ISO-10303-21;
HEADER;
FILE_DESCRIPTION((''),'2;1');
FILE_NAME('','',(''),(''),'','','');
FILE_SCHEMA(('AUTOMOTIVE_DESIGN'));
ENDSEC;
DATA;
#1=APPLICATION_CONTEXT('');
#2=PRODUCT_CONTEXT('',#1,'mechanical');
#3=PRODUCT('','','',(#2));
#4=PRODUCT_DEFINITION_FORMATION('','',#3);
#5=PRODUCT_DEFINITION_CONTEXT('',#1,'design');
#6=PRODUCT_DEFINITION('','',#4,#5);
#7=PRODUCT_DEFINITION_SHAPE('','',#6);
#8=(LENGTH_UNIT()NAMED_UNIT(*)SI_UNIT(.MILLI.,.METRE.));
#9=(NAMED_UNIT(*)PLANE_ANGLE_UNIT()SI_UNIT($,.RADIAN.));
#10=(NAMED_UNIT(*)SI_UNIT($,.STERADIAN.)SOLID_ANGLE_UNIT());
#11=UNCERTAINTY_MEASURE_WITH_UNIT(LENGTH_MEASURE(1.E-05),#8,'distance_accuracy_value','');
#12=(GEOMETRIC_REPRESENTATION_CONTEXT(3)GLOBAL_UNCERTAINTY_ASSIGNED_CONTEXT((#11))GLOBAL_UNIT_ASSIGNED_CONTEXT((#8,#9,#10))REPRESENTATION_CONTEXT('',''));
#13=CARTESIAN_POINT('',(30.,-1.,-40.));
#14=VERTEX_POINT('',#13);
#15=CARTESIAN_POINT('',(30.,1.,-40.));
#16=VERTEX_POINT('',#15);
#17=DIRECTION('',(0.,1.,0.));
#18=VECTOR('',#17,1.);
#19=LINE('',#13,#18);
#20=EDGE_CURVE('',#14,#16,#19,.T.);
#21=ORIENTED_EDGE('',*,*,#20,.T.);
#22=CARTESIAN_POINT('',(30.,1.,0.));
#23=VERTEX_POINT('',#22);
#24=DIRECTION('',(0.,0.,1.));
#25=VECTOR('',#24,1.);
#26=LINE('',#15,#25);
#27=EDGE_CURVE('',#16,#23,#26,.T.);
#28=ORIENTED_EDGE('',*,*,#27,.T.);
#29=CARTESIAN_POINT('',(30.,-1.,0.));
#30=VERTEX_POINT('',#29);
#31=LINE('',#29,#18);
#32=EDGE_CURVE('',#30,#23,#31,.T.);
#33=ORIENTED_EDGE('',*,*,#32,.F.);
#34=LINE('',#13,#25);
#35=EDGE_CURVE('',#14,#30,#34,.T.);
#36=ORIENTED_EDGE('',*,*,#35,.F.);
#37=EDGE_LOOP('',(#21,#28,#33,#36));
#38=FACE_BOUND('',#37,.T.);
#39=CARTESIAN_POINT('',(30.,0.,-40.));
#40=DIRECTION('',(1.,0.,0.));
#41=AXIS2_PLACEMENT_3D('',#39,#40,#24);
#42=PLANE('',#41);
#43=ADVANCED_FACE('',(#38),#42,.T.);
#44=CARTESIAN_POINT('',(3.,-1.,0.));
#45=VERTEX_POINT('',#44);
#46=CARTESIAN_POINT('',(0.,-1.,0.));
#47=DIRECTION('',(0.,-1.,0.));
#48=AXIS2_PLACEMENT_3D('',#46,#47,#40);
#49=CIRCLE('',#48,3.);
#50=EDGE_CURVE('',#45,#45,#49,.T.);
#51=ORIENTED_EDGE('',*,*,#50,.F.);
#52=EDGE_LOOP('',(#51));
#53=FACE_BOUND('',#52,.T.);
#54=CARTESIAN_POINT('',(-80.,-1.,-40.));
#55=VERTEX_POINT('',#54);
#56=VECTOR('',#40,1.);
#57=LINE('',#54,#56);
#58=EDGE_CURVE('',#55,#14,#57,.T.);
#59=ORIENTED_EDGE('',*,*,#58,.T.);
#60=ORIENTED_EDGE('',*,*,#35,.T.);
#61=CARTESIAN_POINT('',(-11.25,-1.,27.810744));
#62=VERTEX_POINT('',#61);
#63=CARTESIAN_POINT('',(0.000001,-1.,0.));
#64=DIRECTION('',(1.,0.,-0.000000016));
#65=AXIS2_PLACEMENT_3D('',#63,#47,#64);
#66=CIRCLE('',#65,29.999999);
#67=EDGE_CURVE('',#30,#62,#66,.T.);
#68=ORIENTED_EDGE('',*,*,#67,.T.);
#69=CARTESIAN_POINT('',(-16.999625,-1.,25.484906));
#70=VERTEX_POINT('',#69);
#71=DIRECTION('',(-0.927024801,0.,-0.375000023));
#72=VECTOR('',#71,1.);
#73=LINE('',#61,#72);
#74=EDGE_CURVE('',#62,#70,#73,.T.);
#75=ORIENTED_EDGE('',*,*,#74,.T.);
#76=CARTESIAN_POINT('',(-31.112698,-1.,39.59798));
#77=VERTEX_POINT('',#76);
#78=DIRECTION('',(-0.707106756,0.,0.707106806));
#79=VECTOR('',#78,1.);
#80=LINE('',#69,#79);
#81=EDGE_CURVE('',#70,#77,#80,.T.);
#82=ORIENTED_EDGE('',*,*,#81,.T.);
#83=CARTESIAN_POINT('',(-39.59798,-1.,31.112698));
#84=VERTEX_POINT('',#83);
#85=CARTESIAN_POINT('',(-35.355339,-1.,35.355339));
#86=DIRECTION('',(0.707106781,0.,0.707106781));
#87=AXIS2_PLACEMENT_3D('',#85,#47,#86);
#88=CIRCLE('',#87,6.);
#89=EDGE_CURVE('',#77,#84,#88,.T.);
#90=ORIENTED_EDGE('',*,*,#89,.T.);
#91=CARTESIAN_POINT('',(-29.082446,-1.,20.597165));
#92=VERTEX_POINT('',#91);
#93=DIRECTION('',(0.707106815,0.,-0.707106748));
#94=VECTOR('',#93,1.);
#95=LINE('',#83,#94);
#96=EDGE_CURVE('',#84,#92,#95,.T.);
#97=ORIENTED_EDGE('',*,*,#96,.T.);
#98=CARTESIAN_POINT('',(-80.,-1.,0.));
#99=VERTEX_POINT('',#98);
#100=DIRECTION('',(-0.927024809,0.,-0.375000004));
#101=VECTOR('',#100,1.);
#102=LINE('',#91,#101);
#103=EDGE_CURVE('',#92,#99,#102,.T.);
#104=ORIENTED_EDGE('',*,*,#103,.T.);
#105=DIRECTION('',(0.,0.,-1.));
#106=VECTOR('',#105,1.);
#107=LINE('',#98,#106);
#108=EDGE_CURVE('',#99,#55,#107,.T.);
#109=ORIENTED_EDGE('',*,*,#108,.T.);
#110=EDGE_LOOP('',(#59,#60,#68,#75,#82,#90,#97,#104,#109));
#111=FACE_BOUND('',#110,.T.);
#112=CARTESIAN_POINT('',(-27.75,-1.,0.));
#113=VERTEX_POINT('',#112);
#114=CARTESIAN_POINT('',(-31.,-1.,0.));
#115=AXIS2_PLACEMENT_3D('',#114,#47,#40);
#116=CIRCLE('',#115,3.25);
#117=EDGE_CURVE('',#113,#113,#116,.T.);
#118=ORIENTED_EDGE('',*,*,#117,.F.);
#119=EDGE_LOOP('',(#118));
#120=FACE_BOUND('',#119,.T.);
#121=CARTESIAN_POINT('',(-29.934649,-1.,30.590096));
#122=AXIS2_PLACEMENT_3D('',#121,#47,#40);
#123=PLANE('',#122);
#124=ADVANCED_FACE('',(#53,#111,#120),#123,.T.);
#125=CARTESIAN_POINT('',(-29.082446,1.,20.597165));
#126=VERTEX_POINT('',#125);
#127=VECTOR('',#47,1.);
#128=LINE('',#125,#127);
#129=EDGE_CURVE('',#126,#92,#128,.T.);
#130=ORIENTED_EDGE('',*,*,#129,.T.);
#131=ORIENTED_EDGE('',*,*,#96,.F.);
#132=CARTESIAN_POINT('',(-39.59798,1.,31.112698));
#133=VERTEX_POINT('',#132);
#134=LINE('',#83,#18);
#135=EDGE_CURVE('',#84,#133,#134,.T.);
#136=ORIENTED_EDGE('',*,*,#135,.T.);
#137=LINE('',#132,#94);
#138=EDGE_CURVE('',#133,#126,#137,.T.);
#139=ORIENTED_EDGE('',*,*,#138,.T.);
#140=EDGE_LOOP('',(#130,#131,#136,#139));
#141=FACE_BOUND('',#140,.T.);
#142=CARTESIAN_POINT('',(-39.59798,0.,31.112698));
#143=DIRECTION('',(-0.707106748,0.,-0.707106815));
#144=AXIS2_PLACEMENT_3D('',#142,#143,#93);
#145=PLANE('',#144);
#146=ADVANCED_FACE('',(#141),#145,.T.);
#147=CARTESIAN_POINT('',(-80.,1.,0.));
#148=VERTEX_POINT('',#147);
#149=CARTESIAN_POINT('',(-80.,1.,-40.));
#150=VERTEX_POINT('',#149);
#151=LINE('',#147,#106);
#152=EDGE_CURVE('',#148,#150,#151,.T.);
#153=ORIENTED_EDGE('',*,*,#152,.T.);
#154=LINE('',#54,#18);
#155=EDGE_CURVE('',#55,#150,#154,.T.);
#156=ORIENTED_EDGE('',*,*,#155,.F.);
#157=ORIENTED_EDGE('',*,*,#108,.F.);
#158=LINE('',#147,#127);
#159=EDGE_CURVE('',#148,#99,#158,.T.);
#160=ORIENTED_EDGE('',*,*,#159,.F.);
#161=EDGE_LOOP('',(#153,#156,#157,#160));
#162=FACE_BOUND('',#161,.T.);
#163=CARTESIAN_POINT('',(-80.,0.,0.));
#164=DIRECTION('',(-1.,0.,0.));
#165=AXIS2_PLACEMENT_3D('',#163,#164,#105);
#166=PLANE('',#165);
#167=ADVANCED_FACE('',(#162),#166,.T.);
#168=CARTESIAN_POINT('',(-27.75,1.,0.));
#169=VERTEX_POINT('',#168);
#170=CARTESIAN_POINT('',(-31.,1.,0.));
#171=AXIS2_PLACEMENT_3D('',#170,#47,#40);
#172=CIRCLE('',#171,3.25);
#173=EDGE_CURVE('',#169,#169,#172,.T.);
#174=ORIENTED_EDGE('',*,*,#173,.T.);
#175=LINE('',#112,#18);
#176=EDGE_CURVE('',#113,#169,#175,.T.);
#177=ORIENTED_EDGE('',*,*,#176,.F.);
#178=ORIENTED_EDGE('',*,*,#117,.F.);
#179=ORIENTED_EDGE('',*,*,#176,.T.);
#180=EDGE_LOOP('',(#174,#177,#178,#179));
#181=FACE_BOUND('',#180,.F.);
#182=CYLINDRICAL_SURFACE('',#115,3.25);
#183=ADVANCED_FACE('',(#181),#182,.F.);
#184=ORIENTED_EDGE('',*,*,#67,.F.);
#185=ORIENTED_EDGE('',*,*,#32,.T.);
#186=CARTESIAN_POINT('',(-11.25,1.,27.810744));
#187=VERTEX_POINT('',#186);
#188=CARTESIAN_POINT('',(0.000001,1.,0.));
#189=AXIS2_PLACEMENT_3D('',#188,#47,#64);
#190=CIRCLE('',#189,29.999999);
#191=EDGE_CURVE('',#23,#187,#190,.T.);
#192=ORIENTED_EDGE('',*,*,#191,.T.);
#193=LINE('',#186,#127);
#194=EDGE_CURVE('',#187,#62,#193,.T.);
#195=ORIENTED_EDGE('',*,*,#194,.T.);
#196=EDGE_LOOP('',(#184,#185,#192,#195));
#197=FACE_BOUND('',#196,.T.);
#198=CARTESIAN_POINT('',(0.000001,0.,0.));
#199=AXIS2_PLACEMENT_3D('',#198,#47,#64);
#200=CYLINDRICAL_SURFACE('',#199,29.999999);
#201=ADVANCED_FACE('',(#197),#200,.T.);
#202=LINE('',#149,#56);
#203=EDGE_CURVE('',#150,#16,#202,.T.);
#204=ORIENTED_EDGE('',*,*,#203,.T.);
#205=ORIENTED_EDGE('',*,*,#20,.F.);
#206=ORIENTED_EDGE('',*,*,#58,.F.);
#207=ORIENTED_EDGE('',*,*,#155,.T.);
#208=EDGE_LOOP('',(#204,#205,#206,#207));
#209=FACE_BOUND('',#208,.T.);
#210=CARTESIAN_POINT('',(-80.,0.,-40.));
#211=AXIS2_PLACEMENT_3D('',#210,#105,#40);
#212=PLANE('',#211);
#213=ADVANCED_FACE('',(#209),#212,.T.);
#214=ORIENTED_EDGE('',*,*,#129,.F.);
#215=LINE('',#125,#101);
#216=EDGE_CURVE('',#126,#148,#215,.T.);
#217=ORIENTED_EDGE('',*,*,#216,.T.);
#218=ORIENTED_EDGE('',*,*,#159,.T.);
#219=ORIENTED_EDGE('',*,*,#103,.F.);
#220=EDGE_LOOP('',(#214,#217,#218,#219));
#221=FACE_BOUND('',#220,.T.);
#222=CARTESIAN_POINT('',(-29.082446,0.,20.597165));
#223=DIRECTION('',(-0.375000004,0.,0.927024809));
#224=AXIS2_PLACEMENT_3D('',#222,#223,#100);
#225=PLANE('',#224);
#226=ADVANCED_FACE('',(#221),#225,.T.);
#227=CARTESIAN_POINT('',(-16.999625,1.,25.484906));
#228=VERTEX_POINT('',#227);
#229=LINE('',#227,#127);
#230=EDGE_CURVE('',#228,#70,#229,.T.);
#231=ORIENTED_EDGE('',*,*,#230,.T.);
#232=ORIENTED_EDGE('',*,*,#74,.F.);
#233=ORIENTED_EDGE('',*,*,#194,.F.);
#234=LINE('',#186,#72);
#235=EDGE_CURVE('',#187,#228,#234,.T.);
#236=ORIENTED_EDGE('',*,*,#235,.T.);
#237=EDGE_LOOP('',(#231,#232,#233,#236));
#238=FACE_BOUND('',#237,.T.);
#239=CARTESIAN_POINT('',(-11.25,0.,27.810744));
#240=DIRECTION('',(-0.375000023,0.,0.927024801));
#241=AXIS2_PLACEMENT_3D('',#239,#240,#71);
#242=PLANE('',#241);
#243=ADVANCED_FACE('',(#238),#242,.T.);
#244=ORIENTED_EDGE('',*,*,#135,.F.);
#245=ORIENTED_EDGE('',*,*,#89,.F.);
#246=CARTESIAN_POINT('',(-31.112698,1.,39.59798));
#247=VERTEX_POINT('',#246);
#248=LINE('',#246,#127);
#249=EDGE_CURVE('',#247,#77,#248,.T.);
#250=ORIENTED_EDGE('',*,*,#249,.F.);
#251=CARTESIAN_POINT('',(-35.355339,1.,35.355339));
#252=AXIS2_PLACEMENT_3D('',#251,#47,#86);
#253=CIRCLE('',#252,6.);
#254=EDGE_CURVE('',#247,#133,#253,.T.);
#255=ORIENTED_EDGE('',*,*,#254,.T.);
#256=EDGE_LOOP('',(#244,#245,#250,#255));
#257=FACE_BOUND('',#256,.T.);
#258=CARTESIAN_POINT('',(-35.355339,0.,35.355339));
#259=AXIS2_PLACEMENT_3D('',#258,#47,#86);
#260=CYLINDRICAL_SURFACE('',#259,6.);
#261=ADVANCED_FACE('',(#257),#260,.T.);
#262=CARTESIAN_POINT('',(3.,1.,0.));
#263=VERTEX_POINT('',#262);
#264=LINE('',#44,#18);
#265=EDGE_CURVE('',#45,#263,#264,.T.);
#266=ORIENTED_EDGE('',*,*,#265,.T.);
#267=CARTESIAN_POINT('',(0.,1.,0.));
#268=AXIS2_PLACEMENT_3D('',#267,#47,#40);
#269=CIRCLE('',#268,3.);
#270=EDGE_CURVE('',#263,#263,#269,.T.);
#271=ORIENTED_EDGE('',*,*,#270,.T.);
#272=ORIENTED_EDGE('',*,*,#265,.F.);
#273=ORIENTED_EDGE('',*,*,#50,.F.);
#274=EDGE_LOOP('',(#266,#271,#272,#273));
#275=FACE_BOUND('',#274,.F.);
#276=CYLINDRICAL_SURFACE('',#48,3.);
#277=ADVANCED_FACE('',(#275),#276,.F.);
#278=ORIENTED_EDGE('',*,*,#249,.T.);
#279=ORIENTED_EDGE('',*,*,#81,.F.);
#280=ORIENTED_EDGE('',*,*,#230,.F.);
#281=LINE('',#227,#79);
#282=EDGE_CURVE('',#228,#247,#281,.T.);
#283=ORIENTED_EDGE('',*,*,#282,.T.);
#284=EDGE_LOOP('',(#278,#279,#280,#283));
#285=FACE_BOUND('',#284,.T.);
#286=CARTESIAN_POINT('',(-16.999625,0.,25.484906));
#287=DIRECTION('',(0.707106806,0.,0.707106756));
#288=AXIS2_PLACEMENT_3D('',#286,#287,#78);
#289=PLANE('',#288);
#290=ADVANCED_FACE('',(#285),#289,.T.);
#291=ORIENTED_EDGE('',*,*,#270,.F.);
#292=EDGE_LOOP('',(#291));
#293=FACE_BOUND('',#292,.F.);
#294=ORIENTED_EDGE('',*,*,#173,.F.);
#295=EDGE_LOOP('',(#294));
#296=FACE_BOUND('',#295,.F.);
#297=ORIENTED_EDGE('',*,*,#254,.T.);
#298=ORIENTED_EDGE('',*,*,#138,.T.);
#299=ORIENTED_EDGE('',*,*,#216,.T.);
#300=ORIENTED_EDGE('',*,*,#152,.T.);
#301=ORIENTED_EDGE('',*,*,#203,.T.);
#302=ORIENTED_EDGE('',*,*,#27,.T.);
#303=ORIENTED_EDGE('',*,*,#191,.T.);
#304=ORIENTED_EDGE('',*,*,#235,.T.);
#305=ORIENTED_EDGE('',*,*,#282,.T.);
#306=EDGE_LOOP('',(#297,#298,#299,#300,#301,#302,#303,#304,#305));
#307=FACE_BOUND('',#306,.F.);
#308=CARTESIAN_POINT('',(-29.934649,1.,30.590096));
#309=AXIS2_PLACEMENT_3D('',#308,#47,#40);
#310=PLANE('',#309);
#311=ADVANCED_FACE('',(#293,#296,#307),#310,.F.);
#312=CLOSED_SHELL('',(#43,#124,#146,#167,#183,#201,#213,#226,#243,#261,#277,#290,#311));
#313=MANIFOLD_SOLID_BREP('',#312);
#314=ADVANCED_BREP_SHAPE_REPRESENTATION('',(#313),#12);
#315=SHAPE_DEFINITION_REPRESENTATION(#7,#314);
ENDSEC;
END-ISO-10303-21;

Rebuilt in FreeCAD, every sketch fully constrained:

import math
import FreeCAD as App
import Part
import Sketcher

V = App.Vector
Q = App.Units.Quantity

doc = App.newDocument("Part")
params = doc.addObject("Spreadsheet::Sheet", "Params")
for row, (alias, value) in enumerate([
    ("sketch1_radius", "29.999999 mm"),
    ("sketch1_width", "110 mm"),
    ("sketch1_height", "40 mm"),
    ("pad1_length", "2 mm"),
    ("sketch2_diameter", "6 mm"),
    ("sketch2_diameter2", "6.5 mm"),
    ("sketch3_radius", "6 mm"),
    ("pad2_length", "2 mm"),
], start=1):
    params.set(f"A{row}", alias)
    params.set(f"B{row}", "=" + value)
    params.setAlias(f"B{row}", alias)

body = doc.addObject("PartDesign::Body", "Body")

# Sketch on XZ plane
sketch1 = body.newObject("Sketcher::SketchObject", "Sketch")
sketch1.AttachmentSupport = (doc.getObject("XZ_Plane"), [""])
sketch1.MapMode = "FlatFace"
sketch1.addGeometry([
    Part.ArcOfCircle(Part.Circle(V(0, 0, 0), V(0, 0, 1), 30), math.radians(0), math.radians(112)),  # 0
    Part.LineSegment(V(-11, 28, 0), V(-17, 25, 0)),  # 1
    Part.LineSegment(V(-17, 25, 0), V(-29, 21, 0)),  # 2
    Part.LineSegment(V(-29, 21, 0), V(-80, 0, 0)),  # 3
    Part.LineSegment(V(-80, 0, 0), V(-80, -40, 0)),  # 4
    Part.LineSegment(V(-80, -40, 0), V(30, -40, 0)),  # 5
    Part.LineSegment(V(30, -40, 0), V(30, 0, 0)),  # 6
], False)
sketch1.addConstraint([
    Sketcher.Constraint("Tangent", 0, 2, 1, 1),
    Sketcher.Constraint("Coincident", 1, 2, 2, 1),
    Sketcher.Constraint("Coincident", 2, 2, 3, 1),
    Sketcher.Constraint("Coincident", 3, 2, 4, 1),
    Sketcher.Constraint("Coincident", 4, 2, 5, 1),
    Sketcher.Constraint("Coincident", 5, 2, 6, 1),
    Sketcher.Constraint("Tangent", 6, 2, 0, 1),
    Sketcher.Constraint("Vertical", 4),
    Sketcher.Constraint("Horizontal", 5),
    Sketcher.Constraint("Vertical", 6),
    Sketcher.Constraint("Coincident", 0, 3, -1, 1),
    Sketcher.Constraint("PointOnObject", 3, 2, -1),
    Sketcher.Constraint("Parallel", 1, 2),
    Sketcher.Constraint("Parallel", 2, 3),
    Sketcher.Constraint("Radius", 0, 29.999999),
    Sketcher.Constraint("DistanceX", 5, 1, 5, 2, 110.0),
    Sketcher.Constraint("DistanceY", 4, 2, 4, 1, 40.0),
    Sketcher.Constraint("DistanceY", 1, 2, 0, 2, 2.325838),
    Sketcher.Constraint("DistanceX", 2, 2, 1, 2, 12.082821),
])
sketch1.setExpression("Constraints[14]", "Params.sketch1_radius")
sketch1.setExpression("Constraints[15]", "Params.sketch1_width")
sketch1.setExpression("Constraints[16]", "Params.sketch1_height")
pad1 = body.newObject("PartDesign::Pad", "Pad")
pad1.Profile = sketch1
pad1.setExpression("Length", "Params.pad1_length")
pad1.Midplane = True

# Sketch on XZ plane
sketch2 = body.newObject("Sketcher::SketchObject", "Sketch001")
sketch2.AttachmentSupport = (doc.getObject("XZ_Plane"), [""])
sketch2.MapMode = "FlatFace"
sketch2.AttachmentOffset = App.Placement(V(0, 0, 1), App.Rotation())
sketch2.addGeometry([
    Part.Circle(V(0, 0, 0), V(0, 0, 1), 3),
    Part.Circle(V(-31, 0, 0), V(0, 0, 1), 3.2),
], False)
sketch2.addConstraint([
    Sketcher.Constraint("Coincident", 0, 3, -1, 1),
    Sketcher.Constraint("PointOnObject", 1, 3, -1),
    Sketcher.Constraint("Diameter", 0, 6.0),
    Sketcher.Constraint("Diameter", 1, 6.5),
    Sketcher.Constraint("DistanceX", 1, 3, -1, 1, 31.0),
])
sketch2.setExpression("Constraints[2]", "Params.sketch2_diameter")
sketch2.setExpression("Constraints[3]", "Params.sketch2_diameter2")
pocket1 = body.newObject("PartDesign::Pocket", "Pocket")
pocket1.Profile = sketch2
pocket1.Type = "ThroughAll"

# Sketch on XZ plane
sketch3 = body.newObject("Sketcher::SketchObject", "Sketch002")
sketch3.AttachmentSupport = (doc.getObject("XZ_Plane"), [""])
sketch3.MapMode = "FlatFace"
sketch3.addGeometry([
    Part.LineSegment(V(-29, 21, 0), V(-17, 25, 0)),
    Part.LineSegment(V(-17, 25, 0), V(-31, 40, 0)),
    Part.ArcOfCircle(Part.Circle(V(-35, 35, 0), V(0, 0, 1), 6), math.radians(45), math.radians(225)),
    Part.LineSegment(V(-40, 31, 0), V(-29, 21, 0)),
], False)
sketch3.addConstraint([
    Sketcher.Constraint("Coincident", 0, 2, 1, 1),
    Sketcher.Constraint("Tangent", 1, 2, 2, 1),
    Sketcher.Constraint("Tangent", 2, 2, 3, 1),
    Sketcher.Constraint("Coincident", 3, 2, 0, 1),
    Sketcher.Constraint("Parallel", 1, 3),
    Sketcher.Constraint("Radius", 2, 6.0),
    Sketcher.Constraint("Angle", 1, Q("134.999998 deg")),
    Sketcher.Constraint("Distance", 1, 19.9589),
    Sketcher.Constraint("DistanceX", 1, 2, -1, 1, 31.112698),
    Sketcher.Constraint("DistanceY", -1, 1, 2, 2, 31.112698),
    Sketcher.Constraint("Distance", 3, 14.87121),
])
sketch3.setExpression("Constraints[5]", "Params.sketch3_radius")
pad2 = body.newObject("PartDesign::Pad", "Pad001")
pad2.Profile = sketch3
pad2.setExpression("Length", "Params.pad2_length")
pad2.Midplane = True

doc.recompute()
